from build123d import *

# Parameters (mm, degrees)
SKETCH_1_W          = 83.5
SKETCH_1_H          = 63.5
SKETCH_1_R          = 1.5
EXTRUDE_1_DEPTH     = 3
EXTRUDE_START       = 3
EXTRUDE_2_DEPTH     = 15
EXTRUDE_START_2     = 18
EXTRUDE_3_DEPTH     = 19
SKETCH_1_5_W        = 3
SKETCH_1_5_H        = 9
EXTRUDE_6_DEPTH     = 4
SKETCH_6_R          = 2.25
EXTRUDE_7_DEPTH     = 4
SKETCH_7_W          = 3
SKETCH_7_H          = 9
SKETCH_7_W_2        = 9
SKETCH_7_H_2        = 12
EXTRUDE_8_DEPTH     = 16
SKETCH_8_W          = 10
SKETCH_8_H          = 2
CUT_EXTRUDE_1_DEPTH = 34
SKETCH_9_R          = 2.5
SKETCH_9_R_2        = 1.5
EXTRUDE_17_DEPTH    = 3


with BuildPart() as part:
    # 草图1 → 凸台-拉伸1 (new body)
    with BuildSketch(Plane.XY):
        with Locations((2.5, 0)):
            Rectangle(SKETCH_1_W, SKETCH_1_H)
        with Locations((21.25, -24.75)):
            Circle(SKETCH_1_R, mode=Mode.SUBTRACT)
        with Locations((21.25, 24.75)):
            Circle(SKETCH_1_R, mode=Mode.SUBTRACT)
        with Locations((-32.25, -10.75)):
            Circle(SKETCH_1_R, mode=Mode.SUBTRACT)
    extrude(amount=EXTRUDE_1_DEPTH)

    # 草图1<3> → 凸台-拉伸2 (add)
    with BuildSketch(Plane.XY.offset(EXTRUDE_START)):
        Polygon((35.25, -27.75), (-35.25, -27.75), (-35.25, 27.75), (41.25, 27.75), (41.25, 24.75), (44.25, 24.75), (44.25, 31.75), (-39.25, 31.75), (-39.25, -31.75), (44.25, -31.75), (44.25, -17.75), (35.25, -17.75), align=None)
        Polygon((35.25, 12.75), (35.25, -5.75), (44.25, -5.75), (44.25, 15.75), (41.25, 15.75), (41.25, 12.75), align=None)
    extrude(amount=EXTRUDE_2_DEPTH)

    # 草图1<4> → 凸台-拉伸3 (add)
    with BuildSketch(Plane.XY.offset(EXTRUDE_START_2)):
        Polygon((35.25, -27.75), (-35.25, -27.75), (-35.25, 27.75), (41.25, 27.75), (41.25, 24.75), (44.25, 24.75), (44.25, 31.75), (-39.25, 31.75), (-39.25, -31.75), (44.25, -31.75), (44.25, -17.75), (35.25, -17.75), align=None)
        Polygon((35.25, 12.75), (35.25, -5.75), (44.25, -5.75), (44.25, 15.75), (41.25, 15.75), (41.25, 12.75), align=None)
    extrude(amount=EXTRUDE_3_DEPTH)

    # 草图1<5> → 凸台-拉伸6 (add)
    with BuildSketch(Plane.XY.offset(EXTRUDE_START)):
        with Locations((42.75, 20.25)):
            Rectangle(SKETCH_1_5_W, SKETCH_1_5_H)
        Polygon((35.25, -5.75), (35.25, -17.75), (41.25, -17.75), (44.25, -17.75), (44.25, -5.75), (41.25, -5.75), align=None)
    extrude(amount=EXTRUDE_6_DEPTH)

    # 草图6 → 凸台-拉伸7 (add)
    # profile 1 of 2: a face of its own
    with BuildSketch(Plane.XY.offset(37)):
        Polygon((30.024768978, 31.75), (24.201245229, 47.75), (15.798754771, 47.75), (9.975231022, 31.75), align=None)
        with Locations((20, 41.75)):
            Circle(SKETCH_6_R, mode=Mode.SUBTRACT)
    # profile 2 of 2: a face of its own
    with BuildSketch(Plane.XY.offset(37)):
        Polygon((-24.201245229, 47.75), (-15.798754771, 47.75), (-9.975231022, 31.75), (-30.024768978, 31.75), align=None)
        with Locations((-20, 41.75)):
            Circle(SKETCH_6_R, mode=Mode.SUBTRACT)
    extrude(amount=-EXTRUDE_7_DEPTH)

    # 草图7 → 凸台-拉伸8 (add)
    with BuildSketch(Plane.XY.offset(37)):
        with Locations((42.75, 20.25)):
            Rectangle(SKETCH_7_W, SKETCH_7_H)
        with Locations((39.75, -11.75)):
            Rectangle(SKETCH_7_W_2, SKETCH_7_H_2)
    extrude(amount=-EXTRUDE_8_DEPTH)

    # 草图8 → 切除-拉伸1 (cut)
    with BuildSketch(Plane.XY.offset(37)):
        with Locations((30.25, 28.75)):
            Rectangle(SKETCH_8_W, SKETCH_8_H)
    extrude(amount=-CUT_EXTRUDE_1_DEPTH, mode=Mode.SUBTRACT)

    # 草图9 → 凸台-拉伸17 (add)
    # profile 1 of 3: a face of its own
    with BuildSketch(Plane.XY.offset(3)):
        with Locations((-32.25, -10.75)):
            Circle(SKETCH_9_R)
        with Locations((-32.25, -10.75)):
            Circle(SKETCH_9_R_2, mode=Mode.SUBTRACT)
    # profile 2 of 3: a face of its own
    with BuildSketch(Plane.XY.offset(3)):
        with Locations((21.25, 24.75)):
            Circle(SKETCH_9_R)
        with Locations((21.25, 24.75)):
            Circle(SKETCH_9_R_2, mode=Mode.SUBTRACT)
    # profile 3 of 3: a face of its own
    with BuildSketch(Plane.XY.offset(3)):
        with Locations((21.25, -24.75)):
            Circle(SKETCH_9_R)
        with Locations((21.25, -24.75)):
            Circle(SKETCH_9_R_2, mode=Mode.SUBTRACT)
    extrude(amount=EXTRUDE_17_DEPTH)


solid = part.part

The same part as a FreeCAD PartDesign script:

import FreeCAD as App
import Part
import Sketcher

V = App.Vector
Q = App.Units.Quantity

doc = App.newDocument("Part")
params = doc.addObject("Spreadsheet::Sheet", "Params")
for row, (alias, value) in enumerate([
    ("sketch1_diameter", "3 mm"),
    ("sketch1_width", "83.5 mm"),
    ("sketch1_height", "63.5 mm"),
    ("pad1_length", "3 mm"),
    ("sketch2_width", "3 mm"),
    ("sketch2_width2", "9 mm"),
    ("sketch2_height", "7 mm"),
    ("sketch2_height2", "14 mm"),
    ("sketch2_width3", "70.5 mm"),
    ("pad2_length", "15 mm"),
    ("sketch3_width", "3 mm"),
    ("sketch3_width2", "9 mm"),
    ("sketch3_height", "7 mm"),
    ("sketch3_height2", "14 mm"),
    ("sketch3_width3", "70.5 mm"),
    ("pad3_length", "19 mm"),
    ("sketch4_width", "3 mm"),
    ("sketch4_width2", "9 mm"),
    ("sketch4_height", "12 mm"),
    ("pad4_length", "4 mm"),
    ("sketch5_diameter", "4.5 mm"),
    ("pad5_length", "4 mm"),
    ("sketch6_width", "3 mm"),
    ("sketch6_width2", "9 mm"),
    ("sketch6_height", "12 mm"),
    ("pad6_length", "16 mm"),
    ("sketch7_width", "10 mm"),
    ("sketch7_height", "2 mm"),
    ("pocket1_length", "34 mm"),
    ("sketch8_diameter", "5 mm"),
    ("sketch8_diameter2", "3 mm"),
    ("pad7_length", "3 mm"),
], start=1):
    params.set(f"A{row}", alias)
    params.set(f"B{row}", "=" + value)
    params.setAlias(f"B{row}", alias)

body = doc.addObject("PartDesign::Body", "Body")

sketch1 = doc.addObject("Sketcher::SketchObject", "Sketch")
body.addObject(sketch1)
sketch1.AttachmentSupport = (doc.XY_Plane, [""])
sketch1.MapMode = "FlatFace"
sketch1.addGeometry(Part.LineSegment(V(-39.2, 31.8, 0), V(-39.2, -31.8, 0)), False)
sketch1.addGeometry(Part.LineSegment(V(-39.2, -31.8, 0), V(44.2, -31.8, 0)), False)
sketch1.addGeometry(Part.LineSegment(V(44.2, -31.8, 0), V(44.2, 31.8, 0)), False)
sketch1.addGeometry(Part.LineSegment(V(44.2, 31.8, 0), V(-39.2, 31.8, 0)), False)
sketch1.addGeometry(Part.Circle(V(-32.2, -10.8, 0), V(0, 0, 1), 1.5), False)
sketch1.addGeometry(Part.Circle(V(21.2, -24.8, 0), V(0, 0, 1), 1.5), False)
sketch1.addGeometry(Part.Circle(V(21.2, 24.8, 0), V(0, 0, 1), 1.5), False)
sketch1.addConstraint(Sketcher.Constraint("Coincident", 0, 2, 1, 1))
sketch1.addConstraint(Sketcher.Constraint("Coincident", 1, 2, 2, 1))
sketch1.addConstraint(Sketcher.Constraint("Coincident", 2, 2, 3, 1))
sketch1.addConstraint(Sketcher.Constraint("Coincident", 3, 2, 0, 1))
sketch1.addConstraint(Sketcher.Constraint("Vertical", 0))
sketch1.addConstraint(Sketcher.Constraint("Horizontal", 1))
sketch1.addConstraint(Sketcher.Constraint("Vertical", 2))
sketch1.addConstraint(Sketcher.Constraint("Horizontal", 3))
sketch1.addConstraint(Sketcher.Constraint("Equal", 4, 5))
sketch1.addConstraint(Sketcher.Constraint("Equal", 5, 6))
sketch1.addConstraint(Sketcher.Constraint("Symmetric", 5, 3, 6, 3, -1))
sketch1.addConstraint(Sketcher.Constraint("Diameter", 4, Q("3 mm")))
sketch1.addConstraint(Sketcher.Constraint("DistanceX", 1, 1, 1, 2, Q("83.5 mm")))
sketch1.addConstraint(Sketcher.Constraint("DistanceY", 0, 2, 0, 1, Q("63.5 mm")))
sketch1.addConstraint(Sketcher.Constraint("DistanceY", 5, 3, 4, 3, Q("14 mm")))
sketch1.addConstraint(Sketcher.Constraint("DistanceX", 0, 2, 4, 3, Q("7 mm")))
sketch1.addConstraint(Sketcher.Constraint("DistanceY", 0, 2, 4, 3, Q("21 mm")))
sketch1.addConstraint(Sketcher.Constraint("DistanceX", 5, 3, 1, 2, Q("23 mm")))
sketch1.addConstraint(Sketcher.Constraint("DistanceY", 6, 3, 2, 2, Q("7 mm")))
sketch1.addConstraint(Sketcher.Constraint("DistanceX", 4, 3, -1, 1, Q("32.25 mm")))
sketch1.setExpression("Constraints[11]", "Params.sketch1_diameter")
sketch1.setExpression("Constraints[12]", "Params.sketch1_width")
sketch1.setExpression("Constraints[13]", "Params.sketch1_height")
pad1 = doc.addObject("PartDesign::Pad", "Pad")
body.addObject(pad1)
pad1.Profile = sketch1
pad1.setExpression("Length", "Params.pad1_length")

sketch2 = doc.addObject("Sketcher::SketchObject", "Sketch001")
body.addObject(sketch2)
sketch2.AttachmentSupport = (doc.XY_Plane, [""])
sketch2.MapMode = "FlatFace"
sketch2.AttachmentOffset = App.Placement(V(0, 0, 3), App.Rotation())
sketch2.addGeometry(Part.LineSegment(V(35.2, -27.8, 0), V(-35.2, -27.8, 0)), False)
sketch2.addGeometry(Part.LineSegment(V(-35.2, -27.8, 0), V(-35.2, 27.8, 0)), False)
sketch2.addGeometry(Part.LineSegment(V(-35.2, 27.8, 0), V(41.2, 27.8, 0)), False)
sketch2.addGeometry(Part.LineSegment(V(41.2, 27.8, 0), V(41.2, 24.8, 0)), False)
sketch2.addGeometry(Part.LineSegment(V(41.2, 24.8, 0), V(44.2, 24.8, 0)), False)
sketch2.addGeometry(Part.LineSegment(V(44.2, 24.8, 0), V(44.2, 31.8, 0)), False)
sketch2.addGeometry(Part.LineSegment(V(44.2, 31.8, 0), V(-39.2, 31.8, 0)), False)
sketch2.addGeometry(Part.LineSegment(V(-39.2, 31.8, 0), V(-39.2, -31.8, 0)), False)
sketch2.addGeometry(Part.LineSegment(V(-39.2, -31.8, 0), V(44.2, -31.8, 0)), False)
sketch2.addGeometry(Part.LineSegment(V(44.2, -31.8, 0), V(44.2, -17.8, 0)), False)
sketch2.addGeometry(Part.LineSegment(V(44.2, -17.8, 0), V(35.2, -17.8, 0)), False)
sketch2.addGeometry(Part.LineSegment(V(35.2, -17.8, 0), V(35.2, -27.8, 0)), False)
sketch2.addGeometry(Part.LineSegment(V(35.2, 12.8, 0), V(35.2, -5.8, 0)), False)
sketch2.addGeometry(Part.LineSegment(V(35.2, -5.8, 0), V(44.2, -5.8, 0)), False)
sketch2.addGeometry(Part.LineSegment(V(44.2, -5.8, 0), V(44.2, 15.8, 0)), False)
sketch2.addGeometry(Part.LineSegment(V(44.2, 15.8, 0), V(41.2, 15.8, 0)), False)
sketch2.addGeometry(Part.LineSegment(V(41.2, 15.8, 0), V(41.2, 12.8, 0)), False)
sketch2.addGeometry(Part.LineSegment(V(41.2, 12.8, 0), V(35.2, 12.8, 0)), False)
sketch2.addConstraint(Sketcher.Constraint("Coincident", 0, 2, 1, 1))
sketch2.addConstraint(Sketcher.Constraint("Coincident", 1, 2, 2, 1))
sketch2.addConstraint(Sketcher.Constraint("Coincident", 2, 2, 3, 1))
sketch2.addConstraint(Sketcher.Constraint("Coincident", 3, 2, 4, 1))
sketch2.addConstraint(Sketcher.Constraint("Coincident", 4, 2, 5, 1))
sketch2.addConstraint(Sketcher.Constraint("Coincident", 5, 2, 6, 1))
sketch2.addConstraint(Sketcher.Constraint("Coincident", 6, 2, 7, 1))
sketch2.addConstraint(Sketcher.Constraint("Coincident", 7, 2, 8, 1))
sketch2.addConstraint(Sketcher.Constraint("Coincident", 8, 2, 9, 1))
sketch2.addConstraint(Sketcher.Constraint("Coincident", 9, 2, 10, 1))
sketch2.addConstraint(Sketcher.Constraint("Coincident", 10, 2, 11, 1))
sketch2.addConstraint(Sketcher.Constraint("Coincident", 11, 2, 0, 1))
sketch2.addConstraint(Sketcher.Constraint("Coincident", 12, 2, 13, 1))
sketch2.addConstraint(Sketcher.Constraint("Coincident", 13, 2, 14, 1))
sketch2.addConstraint(Sketcher.Constraint("Coincident", 14, 2, 15, 1))
sketch2.addConstraint(Sketcher.Constraint("Coincident", 15, 2, 16, 1))
sketch2.addConstraint(Sketcher.Constraint("Coincident", 16, 2, 17, 1))
sketch2.addConstraint(Sketcher.Constraint("Coincident", 17, 2, 12, 1))
sketch2.addConstraint(Sketcher.Constraint("Horizontal", 0))
sketch2.addConstraint(Sketcher.Constraint("Vertical", 1))
sketch2.addConstraint(Sketcher.Constraint("Horizontal", 2))
sketch2.addConstraint(Sketcher.Constraint("Vertical", 3))
sketch2.addConstraint(Sketcher.Constraint("Horizontal", 4))
sketch2.addConstraint(Sketcher.Constraint("Vertical", 5))
sketch2.addConstraint(Sketcher.Constraint("Horizontal", 6))
sketch2.addConstraint(Sketcher.Constraint("Vertical", 7))
sketch2.addConstraint(Sketcher.Constraint("Horizontal", 8))
sketch2.addConstraint(Sketcher.Constraint("Vertical", 9))
sketch2.addConstraint(Sketcher.Constraint("Horizontal", 10))
sketch2.addConstraint(Sketcher.Constraint("Vertical", 11))
sketch2.addConstraint(Sketcher.Constraint("Vertical", 12))
sketch2.addConstraint(Sketcher.Constraint("Horizontal", 13))
sketch2.addConstraint(Sketcher.Constraint("Vertical", 14))
sketch2.addConstraint(Sketcher.Constraint("Horizontal", 15))
sketch2.addConstraint(Sketcher.Constraint("Vertical", 16))
sketch2.addConstraint(Sketcher.Constraint("Horizontal", 17))
sketch2.addConstraint(Sketcher.Constraint("Symmetric", 1, 2, 11, 2, -1, 1))
sketch2.addConstraint(Sketcher.Constraint("Symmetric", 5, 2, 8, 2, -1))
sketch2.addConstraint(Sketcher.Constraint("Vertical", 11, 2, 12, 2))
sketch2.addConstraint(Sketcher.Constraint("Vertical", 9, 2, 13, 2))
sketch2.addConstraint(Sketcher.Constraint("Vertical", 3, 2, 15, 2))
sketch2.addConstraint(Sketcher.Constraint("Equal", 15, 3))
sketch2.addConstraint(Sketcher.Constraint("Equal", 3, 16))
sketch2.addConstraint(Sketcher.Constraint("DistanceX", 4, 1, 4, 2, Q("3 mm")))
sketch2.addConstraint(Sketcher.Constraint("DistanceX", 10, 2, 10, 1, Q("9 mm")))
sketch2.addConstraint(Sketcher.Constraint("DistanceY", 5, 1, 5, 2, Q("7 mm")))
sketch2.addConstraint(Sketcher.Constraint("DistanceY", 9, 1, 9, 2, Q("14 mm")))
sketch2.addConstraint(Sketcher.Constraint("DistanceX", 0, 2, 0, 1, Q("70.5 mm")))
sketch2.addConstraint(Sketcher.Constraint("DistanceX", 6, 2, 6, 1, Q("83.5 mm")))
sketch2.addConstraint(Sketcher.Constraint("DistanceY", 1, 1, 1, 2, Q("55.5 mm")))
sketch2.addConstraint(Sketcher.Constraint("DistanceY", 12, 2, 12, 1, Q("18.5 mm")))
sketch2.addConstraint(Sketcher.Constraint("DistanceY", 10, 2, 12, 2, Q("12 mm")))
sketch2.setExpression("Constraints[43]", "Params.sketch2_width")
sketch2.setExpression("Constraints[44]", "Params.sketch2_width2")
sketch2.setExpression("Constraints[45]", "Params.sketch2_height")
sketch2.setExpression("Constraints[46]", "Params.sketch2_height2")
sketch2.setExpression("Constraints[47]", "Params.sketch2_width3")
pad2 = doc.addObject("PartDesign::Pad", "Pad001")
body.addObject(pad2)
pad2.Profile = sketch2
pad2.setExpression("Length", "Params.pad2_length")

sketch3 = doc.addObject("Sketcher::SketchObject", "Sketch002")
body.addObject(sketch3)
sketch3.AttachmentSupport = (doc.XY_Plane, [""])
sketch3.MapMode = "FlatFace"
sketch3.AttachmentOffset = App.Placement(V(0, 0, 18), App.Rotation())
sketch3.addGeometry(Part.LineSegment(V(35.2, -27.8, 0), V(-35.2, -27.8, 0)), False)
sketch3.addGeometry(Part.LineSegment(V(-35.2, -27.8, 0), V(-35.2, 27.8, 0)), False)
sketch3.addGeometry(Part.LineSegment(V(-35.2, 27.8, 0), V(41.2, 27.8, 0)), False)
sketch3.addGeometry(Part.LineSegment(V(41.2, 27.8, 0), V(41.2, 24.8, 0)), False)
sketch3.addGeometry(Part.LineSegment(V(41.2, 24.8, 0), V(44.2, 24.8, 0)), False)
sketch3.addGeometry(Part.LineSegment(V(44.2, 24.8, 0), V(44.2, 31.8, 0)), False)
sketch3.addGeometry(Part.LineSegment(V(44.2, 31.8, 0), V(-39.2, 31.8, 0)), False)
sketch3.addGeometry(Part.LineSegment(V(-39.2, 31.8, 0), V(-39.2, -31.8, 0)), False)
sketch3.addGeometry(Part.LineSegment(V(-39.2, -31.8, 0), V(44.2, -31.8, 0)), False)
sketch3.addGeometry(Part.LineSegment(V(44.2, -31.8, 0), V(44.2, -17.8, 0)), False)
sketch3.addGeometry(Part.LineSegment(V(44.2, -17.8, 0), V(35.2, -17.8, 0)), False)
sketch3.addGeometry(Part.LineSegment(V(35.2, -17.8, 0), V(35.2, -27.8, 0)), False)
sketch3.addGeometry(Part.LineSegment(V(35.2, 12.8, 0), V(35.2, -5.8, 0)), False)
sketch3.addGeometry(Part.LineSegment(V(35.2, -5.8, 0), V(44.2, -5.8, 0)), False)
sketch3.addGeometry(Part.LineSegment(V(44.2, -5.8, 0), V(44.2, 15.8, 0)), False)
sketch3.addGeometry(Part.LineSegment(V(44.2, 15.8, 0), V(41.2, 15.8, 0)), False)
sketch3.addGeometry(Part.LineSegment(V(41.2, 15.8, 0), V(41.2, 12.8, 0)), False)
sketch3.addGeometry(Part.LineSegment(V(41.2, 12.8, 0), V(35.2, 12.8, 0)), False)
sketch3.addConstraint(Sketcher.Constraint("Coincident", 0, 2, 1, 1))
sketch3.addConstraint(Sketcher.Constraint("Coincident", 1, 2, 2, 1))
sketch3.addConstraint(Sketcher.Constraint("Coincident", 2, 2, 3, 1))
sketch3.addConstraint(Sketcher.Constraint("Coincident", 3, 2, 4, 1))
sketch3.addConstraint(Sketcher.Constraint("Coincident", 4, 2, 5, 1))
sketch3.addConstraint(Sketcher.Constraint("Coincident", 5, 2, 6, 1))
sketch3.addConstraint(Sketcher.Constraint("Coincident", 6, 2, 7, 1))
sketch3.addConstraint(Sketcher.Constraint("Coincident", 7, 2, 8, 1))
sketch3.addConstraint(Sketcher.Constraint("Coincident", 8, 2, 9, 1))
sketch3.addConstraint(Sketcher.Constraint("Coincident", 9, 2, 10, 1))
sketch3.addConstraint(Sketcher.Constraint("Coincident", 10, 2, 11, 1))
sketch3.addConstraint(Sketcher.Constraint("Coincident", 11, 2, 0, 1))
sketch3.addConstraint(Sketcher.Constraint("Coincident", 12, 2, 13, 1))
sketch3.addConstraint(Sketcher.Constraint("Coincident", 13, 2, 14, 1))
sketch3.addConstraint(Sketcher.Constraint("Coincident", 14, 2, 15, 1))
sketch3.addConstraint(Sketcher.Constraint("Coincident", 15, 2, 16, 1))
sketch3.addConstraint(Sketcher.Constraint("Coincident", 16, 2, 17, 1))
sketch3.addConstraint(Sketcher.Constraint("Coincident", 17, 2, 12, 1))
sketch3.addConstraint(Sketcher.Constraint("Horizontal", 0))
sketch3.addConstraint(Sketcher.Constraint("Vertical", 1))
sketch3.addConstraint(Sketcher.Constraint("Horizontal", 2))
sketch3.addConstraint(Sketcher.Constraint("Vertical", 3))
sketch3.addConstraint(Sketcher.Constraint("Horizontal", 4))
sketch3.addConstraint(Sketcher.Constraint("Vertical", 5))
sketch3.addConstraint(Sketcher.Constraint("Horizontal", 6))
sketch3.addConstraint(Sketcher.Constraint("Vertical", 7))
sketch3.addConstraint(Sketcher.Constraint("Horizontal", 8))
sketch3.addConstraint(Sketcher.Constraint("Vertical", 9))
sketch3.addConstraint(Sketcher.Constraint("Horizontal", 10))
sketch3.addConstraint(Sketcher.Constraint("Vertical", 11))
sketch3.addConstraint(Sketcher.Constraint("Vertical", 12))
sketch3.addConstraint(Sketcher.Constraint("Horizontal", 13))
sketch3.addConstraint(Sketcher.Constraint("Vertical", 14))
sketch3.addConstraint(Sketcher.Constraint("Horizontal", 15))
sketch3.addConstraint(Sketcher.Constraint("Vertical", 16))
sketch3.addConstraint(Sketcher.Constraint("Horizontal", 17))
sketch3.addConstraint(Sketcher.Constraint("Symmetric", 1, 2, 11, 2, -1, 1))
sketch3.addConstraint(Sketcher.Constraint("Symmetric", 5, 2, 8, 2, -1))
sketch3.addConstraint(Sketcher.Constraint("Vertical", 11, 2, 12, 2))
sketch3.addConstraint(Sketcher.Constraint("Vertical", 9, 2, 13, 2))
sketch3.addConstraint(Sketcher.Constraint("Vertical", 3, 2, 15, 2))
sketch3.addConstraint(Sketcher.Constraint("Equal", 15, 3))
sketch3.addConstraint(Sketcher.Constraint("Equal", 3, 16))
sketch3.addConstraint(Sketcher.Constraint("DistanceX", 4, 1, 4, 2, Q("3 mm")))
sketch3.addConstraint(Sketcher.Constraint("DistanceX", 10, 2, 10, 1, Q("9 mm")))
sketch3.addConstraint(Sketcher.Constraint("DistanceY", 5, 1, 5, 2, Q("7 mm")))
sketch3.addConstraint(Sketcher.Constraint("DistanceY", 9, 1, 9, 2, Q("14 mm")))
sketch3.addConstraint(Sketcher.Constraint("DistanceX", 0, 2, 0, 1, Q("70.5 mm")))
sketch3.addConstraint(Sketcher.Constraint("DistanceX", 6, 2, 6, 1, Q("83.5 mm")))
sketch3.addConstraint(Sketcher.Constraint("DistanceY", 1, 1, 1, 2, Q("55.5 mm")))
sketch3.addConstraint(Sketcher.Constraint("DistanceY", 12, 2, 12, 1, Q("18.5 mm")))
sketch3.addConstraint(Sketcher.Constraint("DistanceY", 10, 2, 12, 2, Q("12 mm")))
sketch3.setExpression("Constraints[43]", "Params.sketch3_width")
sketch3.setExpression("Constraints[44]", "Params.sketch3_width2")
sketch3.setExpression("Constraints[45]", "Params.sketch3_height")
sketch3.setExpression("Constraints[46]", "Params.sketch3_height2")
sketch3.setExpression("Constraints[47]", "Params.sketch3_width3")
pad3 = doc.addObject("PartDesign::Pad", "Pad002")
body.addObject(pad3)
pad3.Profile = sketch3
pad3.setExpression("Length", "Params.pad3_length")

sketch4 = doc.addObject("Sketcher::SketchObject", "Sketch003")
body.addObject(sketch4)
sketch4.AttachmentSupport = (doc.XY_Plane, [""])
sketch4.MapMode = "FlatFace"
sketch4.AttachmentOffset = App.Placement(V(0, 0, 3), App.Rotation())
sketch4.addGeometry(Part.LineSegment(V(41.2, 24.8, 0), V(41.2, 15.8, 0)), False)
sketch4.addGeometry(Part.LineSegment(V(41.2, 15.8, 0), V(44.2, 15.8, 0)), False)
sketch4.addGeometry(Part.LineSegment(V(44.2, 15.8, 0), V(44.2, 24.8, 0)), False)
sketch4.addGeometry(Part.LineSegment(V(44.2, 24.8, 0), V(41.2, 24.8, 0)), False)
sketch4.addGeometry(Part.LineSegment(V(35.2, -5.8, 0), V(35.2, -17.8, 0)), False)
sketch4.addGeometry(Part.LineSegment(V(35.2, -17.8, 0), V(44.2, -17.8, 0)), False)
sketch4.addGeometry(Part.LineSegment(V(44.2, -17.8, 0), V(44.2, -5.8, 0)), False)
sketch4.addGeometry(Part.LineSegment(V(44.2, -5.8, 0), V(35.2, -5.8, 0)), False)
sketch4.addConstraint(Sketcher.Constraint("Coincident", 0, 2, 1, 1))
sketch4.addConstraint(Sketcher.Constraint("Coincident", 1, 2, 2, 1))
sketch4.addConstraint(Sketcher.Constraint("Coincident", 2, 2, 3, 1))
sketch4.addConstraint(Sketcher.Constraint("Coincident", 3, 2, 0, 1))
sketch4.addConstraint(Sketcher.Constraint("Coincident", 4, 2, 5, 1))
sketch4.addConstraint(Sketcher.Constraint("Coincident", 5, 2, 6, 1))
sketch4.addConstraint(Sketcher.Constraint("Coincident", 6, 2, 7, 1))
sketch4.addConstraint(Sketcher.Constraint("Coincident", 7, 2, 4, 1))
sketch4.addConstraint(Sketcher.Constraint("Vertical", 0))
sketch4.addConstraint(Sketcher.Constraint("Horizontal", 1))
sketch4.addConstraint(Sketcher.Constraint("Vertical", 2))
sketch4.addConstraint(Sketcher.Constraint("Horizontal", 3))
sketch4.addConstraint(Sketcher.Constraint("Vertical", 4))
sketch4.addConstraint(Sketcher.Constraint("Horizontal", 5))
sketch4.addConstraint(Sketcher.Constraint("Vertical", 6))
sketch4.addConstraint(Sketcher.Constraint("Horizontal", 7))
sketch4.addConstraint(Sketcher.Constraint("Vertical", 2, 2, 5, 2))
sketch4.addConstraint(Sketcher.Constraint("Equal", 7, 0))
sketch4.addConstraint(Sketcher.Constraint("DistanceX", 1, 1, 1, 2, Q("3 mm")))
sketch4.addConstraint(Sketcher.Constraint("DistanceX", 5, 1, 5, 2, Q("9 mm")))
sketch4.addConstraint(Sketcher.Constraint("DistanceY", 4, 2, 4, 1, Q("12 mm")))
sketch4.addConstraint(Sketcher.Constraint("DistanceY", 4, 2, 0, 2, Q("33.5 mm")))
sketch4.addConstraint(Sketcher.Constraint("DistanceX", -1, 1, 0, 2, Q("41.25 mm")))
sketch4.addConstraint(Sketcher.Constraint("DistanceY", -1, 1, 0, 2, Q("15.75 mm")))
sketch4.setExpression("Constraints[18]", "Params.sketch4_width")
sketch4.setExpression("Constraints[19]", "Params.sketch4_width2")
sketch4.setExpression("Constraints[20]", "Params.sketch4_height")
pad4 = doc.addObject("PartDesign::Pad", "Pad003")
body.addObject(pad4)
pad4.Profile = sketch4
pad4.setExpression("Length", "Params.pad4_length")

sketch5 = doc.addObject("Sketcher::SketchObject", "Sketch004")
body.addObject(sketch5)
sketch5.AttachmentSupport = (doc.XY_Plane, [""])
sketch5.MapMode = "FlatFace"
sketch5.AttachmentOffset = App.Placement(V(0, 0, 37), App.Rotation())
sketch5.addGeometry(Part.LineSegment(V(30, 31.8, 0), V(24.2, 47.8, 0)), False)
sketch5.addGeometry(Part.LineSegment(V(24.2, 47.8, 0), V(15.8, 47.8, 0)), False)
sketch5.addGeometry(Part.LineSegment(V(15.8, 47.8, 0), V(10, 31.8, 0)), False)
sketch5.addGeometry(Part.LineSegment(V(10, 31.8, 0), V(30, 31.8, 0)), False)
sketch5.addGeometry(Part.Circle(V(20, 41.8, 0), V(0, 0, 1), 2.2), False)
sketch5.addGeometry(Part.LineSegment(V(-15.8, 47.8, 0), V(-24.2, 47.8, 0)), False)
sketch5.addGeometry(Part.LineSegment(V(-24.2, 47.8, 0), V(-30, 31.8, 0)), False)
sketch5.addGeometry(Part.LineSegment(V(-30, 31.8, 0), V(-10, 31.8, 0)), False)
sketch5.addGeometry(Part.LineSegment(V(-10, 31.8, 0), V(-15.8, 47.8, 0)), False)
sketch5.addGeometry(Part.Circle(V(-20, 41.8, 0), V(0, 0, 1), 2.2), False)
sketch5.addConstraint(Sketcher.Constraint("Coincident", 0, 2, 1, 1))
sketch5.addConstraint(Sketcher.Constraint("Coincident", 1, 2, 2, 1))
sketch5.addConstraint(Sketcher.Constraint("Coincident", 2, 2, 3, 1))
sketch5.addConstraint(Sketcher.Constraint("Coincident", 3, 2, 0, 1))
sketch5.addConstraint(Sketcher.Constraint("Coincident", 5, 2, 6, 1))
sketch5.addConstraint(Sketcher.Constraint("Coincident", 6, 2, 7, 1))
sketch5.addConstraint(Sketcher.Constraint("Coincident", 7, 2, 8, 1))
sketch5.addConstraint(Sketcher.Constraint("Coincident", 8, 2, 5, 1))
sketch5.addConstraint(Sketcher.Constraint("Horizontal", 1))
sketch5.addConstraint(Sketcher.Constraint("Horizontal", 3))
sketch5.addConstraint(Sketcher.Constraint("Horizontal", 5))
sketch5.addConstraint(Sketcher.Constraint("Horizontal", 7))
sketch5.addConstraint(Sketcher.Constraint("Equal", 4, 9))
sketch5.addConstraint(Sketcher.Constraint("Symmetric", 4, 3, 9, 3, -2))
sketch5.addConstraint(Sketcher.Constraint("Symmetric", 0, 2, 5, 2, -2))
sketch5.addConstraint(Sketcher.Constraint("Symmetric", 3, 2, 6, 2, -2))
sketch5.addConstraint(Sketcher.Constraint("Parallel", 2, 6))
sketch5.addConstraint(Sketcher.Constraint("Parallel", 0, 8))
sketch5.addConstraint(Sketcher.Constraint("Equal", 1, 5))
sketch5.addConstraint(Sketcher.Constraint("Diameter", 4, Q("4.5 mm")))
sketch5.addConstraint(Sketcher.Constraint("Angle", 0, Q("110 deg")))
sketch5.addConstraint(Sketcher.Constraint("DistanceX", -1, 1, 4, 3, Q("20 mm")))
sketch5.addConstraint(Sketcher.Constraint("DistanceY", 4, 3, 0, 2, Q("6 mm")))
sketch5.addConstraint(Sketcher.Constraint("DistanceY", 2, 2, 4, 3, Q("10 mm")))
sketch5.addConstraint(Sketcher.Constraint("DistanceX", 5, 2, 1, 2, Q("40 mm")))
sketch5.addConstraint(Sketcher.Constraint("DistanceY", -1, 1, 4, 3, Q("41.75 mm")))
sketch5.addConstraint(Sketcher.Constraint("DistanceX", 1, 2, 1, 1, Q("8.40249 mm")))
sketch5.setExpression("Constraints[19]", "Params.sketch5_diameter")
pad5 = doc.addObject("PartDesign::Pad", "Pad004")
body.addObject(pad5)
pad5.Profile = sketch5
pad5.setExpression("Length", "Params.pad5_length")
pad5.Reversed = True

sketch6 = doc.addObject("Sketcher::SketchObject", "Sketch005")
body.addObject(sketch6)
sketch6.AttachmentSupport = (doc.XY_Plane, [""])
sketch6.MapMode = "FlatFace"
sketch6.AttachmentOffset = App.Placement(V(0, 0, 37), App.Rotation())
sketch6.addGeometry(Part.LineSegment(V(41.2, 24.8, 0), V(41.2, 15.8, 0)), False)
sketch6.addGeometry(Part.LineSegment(V(41.2, 15.8, 0), V(44.2, 15.8, 0)), False)
sketch6.addGeometry(Part.LineSegment(V(44.2, 15.8, 0), V(44.2, 24.8, 0)), False)
sketch6.addGeometry(Part.LineSegment(V(44.2, 24.8, 0), V(41.2, 24.8, 0)), False)
sketch6.addGeometry(Part.LineSegment(V(35.2, -5.8, 0), V(35.2, -17.8, 0)), False)
sketch6.addGeometry(Part.LineSegment(V(35.2, -17.8, 0), V(44.2, -17.8, 0)), False)
sketch6.addGeometry(Part.LineSegment(V(44.2, -17.8, 0), V(44.2, -5.8, 0)), False)
sketch6.addGeometry(Part.LineSegment(V(44.2, -5.8, 0), V(35.2, -5.8, 0)), False)
sketch6.addConstraint(Sketcher.Constraint("Coincident", 0, 2, 1, 1))
sketch6.addConstraint(Sketcher.Constraint("Coincident", 1, 2, 2, 1))
sketch6.addConstraint(Sketcher.Constraint("Coincident", 2, 2, 3, 1))
sketch6.addConstraint(Sketcher.Constraint("Coincident", 3, 2, 0, 1))
sketch6.addConstraint(Sketcher.Constraint("Coincident", 4, 2, 5, 1))
sketch6.addConstraint(Sketcher.Constraint("Coincident", 5, 2, 6, 1))
sketch6.addConstraint(Sketcher.Constraint("Coincident", 6, 2, 7, 1))
sketch6.addConstraint(Sketcher.Constraint("Coincident", 7, 2, 4, 1))
sketch6.addConstraint(Sketcher.Constraint("Vertical", 0))
sketch6.addConstraint(Sketcher.Constraint("Horizontal", 1))
sketch6.addConstraint(Sketcher.Constraint("Vertical", 2))
sketch6.addConstraint(Sketcher.Constraint("Horizontal", 3))
sketch6.addConstraint(Sketcher.Constraint("Vertical", 4))
sketch6.addConstraint(Sketcher.Constraint("Horizontal", 5))
sketch6.addConstraint(Sketcher.Constraint("Vertical", 6))
sketch6.addConstraint(Sketcher.Constraint("Horizontal", 7))
sketch6.addConstraint(Sketcher.Constraint("Vertical", 2, 2, 5, 2))
sketch6.addConstraint(Sketcher.Constraint("Equal", 7, 0))
sketch6.addConstraint(Sketcher.Constraint("DistanceX", 1, 1, 1, 2, Q("3 mm")))
sketch6.addConstraint(Sketcher.Constraint("DistanceX", 5, 1, 5, 2, Q("9 mm")))
sketch6.addConstraint(Sketcher.Constraint("DistanceY", 4, 2, 4, 1, Q("12 mm")))
sketch6.addConstraint(Sketcher.Constraint("DistanceY", 4, 2, 0, 2, Q("33.5 mm")))
sketch6.addConstraint(Sketcher.Constraint("DistanceX", -1, 1, 0, 2, Q("41.25 mm")))
sketch6.addConstraint(Sketcher.Constraint("DistanceY", -1, 1, 0, 2, Q("15.75 mm")))
sketch6.setExpression("Constraints[18]", "Params.sketch6_width")
sketch6.setExpression("Constraints[19]", "Params.sketch6_width2")
sketch6.setExpression("Constraints[20]", "Params.sketch6_height")
pad6 = doc.addObject("PartDesign::Pad", "Pad005")
body.addObject(pad6)
pad6.Profile = sketch6
pad6.setExpression("Length", "Params.pad6_length")
pad6.Reversed = True

sketch7 = doc.addObject("Sketcher::SketchObject", "Sketch006")
body.addObject(sketch7)
sketch7.AttachmentSupport = (doc.XY_Plane, [""])
sketch7.MapMode = "FlatFace"
sketch7.AttachmentOffset = App.Placement(V(0, 0, 37), App.Rotation())
sketch7.addGeometry(Part.LineSegment(V(25.2, 29.8, 0), V(25.2, 27.8, 0)), False)
sketch7.addGeometry(Part.LineSegment(V(25.2, 27.8, 0), V(35.2, 27.8, 0)), False)
sketch7.addGeometry(Part.LineSegment(V(35.2, 27.8, 0), V(35.2, 29.8, 0)), False)
sketch7.addGeometry(Part.LineSegment(V(35.2, 29.8, 0), V(25.2, 29.8, 0)), False)
sketch7.addConstraint(Sketcher.Constraint("Coincident", 0, 2, 1, 1))
sketch7.addConstraint(Sketcher.Constraint("Coincident", 1, 2, 2, 1))
sketch7.addConstraint(Sketcher.Constraint("Coincident", 2, 2, 3, 1))
sketch7.addConstraint(Sketcher.Constraint("Coincident", 3, 2, 0, 1))
sketch7.addConstraint(Sketcher.Constraint("Vertical", 0))
sketch7.addConstraint(Sketcher.Constraint("Horizontal", 1))
sketch7.addConstraint(Sketcher.Constraint("Vertical", 2))
sketch7.addConstraint(Sketcher.Constraint("Horizontal", 3))
sketch7.addConstraint(Sketcher.Constraint("DistanceX", 1, 1, 1, 2, Q("10 mm")))
sketch7.addConstraint(Sketcher.Constraint("DistanceY", 0, 2, 0, 1, Q("2 mm")))
sketch7.addConstraint(Sketcher.Constraint("DistanceX", -1, 1, 0, 2, Q("25.25 mm")))
sketch7.addConstraint(Sketcher.Constraint("DistanceY", -1, 1, 0, 2, Q("27.75 mm")))
sketch7.setExpression("Constraints[8]", "Params.sketch7_width")
sketch7.setExpression("Constraints[9]", "Params.sketch7_height")
pocket1 = doc.addObject("PartDesign::Pocket", "Pocket")
body.addObject(pocket1)
pocket1.Profile = sketch7
pocket1.setExpression("Length", "Params.pocket1_length")

sketch8 = doc.addObject("Sketcher::SketchObject", "Sketch007")
body.addObject(sketch8)
sketch8.AttachmentSupport = (doc.XY_Plane, [""])
sketch8.MapMode = "FlatFace"
sketch8.AttachmentOffset = App.Placement(V(0, 0, 3), App.Rotation())
sketch8.addGeometry(Part.Circle(V(-32.2, -10.8, 0), V(0, 0, 1), 2.5), False)
sketch8.addGeometry(Part.Circle(V(-32.2, -10.8, 0), V(0, 0, 1), 1.5), False)
sketch8.addGeometry(Part.Circle(V(21.2, 24.8, 0), V(0, 0, 1), 2.5), False)
sketch8.addGeometry(Part.Circle(V(21.2, 24.8, 0), V(0, 0, 1), 1.5), False)
sketch8.addGeometry(Part.Circle(V(21.2, -24.8, 0), V(0, 0, 1), 2.5), False)
sketch8.addGeometry(Part.Circle(V(21.2, -24.8, 0), V(0, 0, 1), 1.5), False)
sketch8.addConstraint(Sketcher.Constraint("Coincident", 1, 3, 0, 3))
sketch8.addConstraint(Sketcher.Constraint("Coincident", 3, 3, 2, 3))
sketch8.addConstraint(Sketcher.Constraint("Coincident", 5, 3, 4, 3))
sketch8.addConstraint(Sketcher.Constraint("Equal", 0, 2))
sketch8.addConstraint(Sketcher.Constraint("Equal", 1, 3))
sketch8.addConstraint(Sketcher.Constraint("Equal", 2, 4))
sketch8.addConstraint(Sketcher.Constraint("Equal", 3, 5))
sketch8.addConstraint(Sketcher.Constraint("Symmetric", 2, 3, 4, 3, -1))
sketch8.addConstraint(Sketcher.Constraint("Diameter", 0, Q("5 mm")))
sketch8.addConstraint(Sketcher.Constraint("Diameter", 1, Q("3 mm")))
sketch8.addConstraint(Sketcher.Constraint("DistanceY", 4, 3, 0, 3, Q("14 mm")))
sketch8.addConstraint(Sketcher.Constraint("DistanceX", 0, 3, 2, 3, Q("53.5 mm")))
sketch8.addConstraint(Sketcher.Constraint("DistanceY", 0, 3, 2, 3, Q("35.5 mm")))
sketch8.addConstraint(Sketcher.Constraint("DistanceX", 0, 3, -1, 1, Q("32.25 mm")))
sketch8.setExpression("Constraints[8]", "Params.sketch8_diameter")
sketch8.setExpression("Constraints[9]", "Params.sketch8_diameter2")
pad7 = doc.addObject("PartDesign::Pad", "Pad006")
body.addObject(pad7)
pad7.Profile = sketch8
pad7.setExpression("Length", "Params.pad7_length")

doc.recompute()
